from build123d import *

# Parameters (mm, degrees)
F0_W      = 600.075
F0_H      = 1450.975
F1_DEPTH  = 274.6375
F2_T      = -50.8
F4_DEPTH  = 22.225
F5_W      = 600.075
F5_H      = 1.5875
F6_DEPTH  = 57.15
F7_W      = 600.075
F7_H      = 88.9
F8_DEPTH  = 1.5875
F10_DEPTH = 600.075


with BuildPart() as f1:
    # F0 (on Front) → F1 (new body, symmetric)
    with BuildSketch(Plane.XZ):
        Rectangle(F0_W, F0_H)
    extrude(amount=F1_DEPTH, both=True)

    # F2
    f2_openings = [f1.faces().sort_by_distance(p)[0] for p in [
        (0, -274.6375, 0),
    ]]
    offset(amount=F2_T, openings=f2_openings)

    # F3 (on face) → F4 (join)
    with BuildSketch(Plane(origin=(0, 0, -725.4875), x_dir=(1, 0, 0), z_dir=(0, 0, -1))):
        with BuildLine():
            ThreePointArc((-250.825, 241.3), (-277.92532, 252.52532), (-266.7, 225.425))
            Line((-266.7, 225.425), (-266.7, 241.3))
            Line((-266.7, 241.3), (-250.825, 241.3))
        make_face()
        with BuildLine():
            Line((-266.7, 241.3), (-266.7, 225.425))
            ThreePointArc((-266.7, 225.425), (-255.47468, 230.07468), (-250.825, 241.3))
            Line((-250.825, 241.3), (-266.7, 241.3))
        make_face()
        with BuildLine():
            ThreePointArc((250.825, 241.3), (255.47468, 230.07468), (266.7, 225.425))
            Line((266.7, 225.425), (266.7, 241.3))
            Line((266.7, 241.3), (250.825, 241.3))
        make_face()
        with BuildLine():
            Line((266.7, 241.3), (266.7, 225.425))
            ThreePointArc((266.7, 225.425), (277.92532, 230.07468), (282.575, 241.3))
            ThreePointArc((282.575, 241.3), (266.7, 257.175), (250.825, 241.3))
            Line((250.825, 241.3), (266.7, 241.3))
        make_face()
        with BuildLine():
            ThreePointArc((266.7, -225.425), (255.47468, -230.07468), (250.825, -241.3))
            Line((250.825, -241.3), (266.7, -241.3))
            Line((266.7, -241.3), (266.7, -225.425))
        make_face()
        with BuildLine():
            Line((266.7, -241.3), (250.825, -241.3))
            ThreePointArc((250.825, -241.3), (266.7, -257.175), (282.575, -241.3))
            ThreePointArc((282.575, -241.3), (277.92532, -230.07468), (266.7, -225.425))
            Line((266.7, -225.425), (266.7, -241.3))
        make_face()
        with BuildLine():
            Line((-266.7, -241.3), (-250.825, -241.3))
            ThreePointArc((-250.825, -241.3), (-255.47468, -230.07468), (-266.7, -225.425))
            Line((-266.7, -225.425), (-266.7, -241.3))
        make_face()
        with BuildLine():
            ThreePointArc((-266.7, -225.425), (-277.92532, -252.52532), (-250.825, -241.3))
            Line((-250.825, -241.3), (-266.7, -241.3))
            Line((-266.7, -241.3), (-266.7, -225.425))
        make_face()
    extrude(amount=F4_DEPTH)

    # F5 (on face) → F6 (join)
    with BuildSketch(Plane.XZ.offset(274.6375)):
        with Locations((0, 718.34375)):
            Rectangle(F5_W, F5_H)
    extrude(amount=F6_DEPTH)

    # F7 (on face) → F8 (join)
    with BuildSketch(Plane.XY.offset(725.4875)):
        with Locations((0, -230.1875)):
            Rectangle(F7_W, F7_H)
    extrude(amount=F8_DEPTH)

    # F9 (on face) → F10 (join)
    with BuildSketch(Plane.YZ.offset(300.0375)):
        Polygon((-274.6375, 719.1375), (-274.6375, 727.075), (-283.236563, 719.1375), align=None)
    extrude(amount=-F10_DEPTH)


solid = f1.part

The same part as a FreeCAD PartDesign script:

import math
import FreeCAD as App
import Part
import Sketcher
Q = App.Units.Quantity


def faces_at(feature, points):
    """Names of the faces that lie closest to the given points."""
    faces = feature.Shape.Faces
    near = lambda p: min(range(len(faces)), key=lambda i: faces[i].distToShape(Part.Vertex(*p))[0])
    return sorted({f"Face{near(p) + 1}" for p in points})


def add_polygon(sketch, points):
    """Adds a closed chain of lines whose ends are joined by coincident constraints."""
    first, n = sketch.GeometryCount, len(points)
    for a, b in zip(points, points[1:] + points[:1]):
        sketch.addGeometry(Part.LineSegment(App.Vector(*a, 0), App.Vector(*b, 0)), False)
    for i in range(n):
        sketch.addConstraint(Sketcher.Constraint("Coincident", first + i, 2, first + (i + 1) % n, 1))

doc = App.newDocument("Part")
body = doc.addObject("PartDesign::Body", "Body")

sketch1 = doc.addObject("Sketcher::SketchObject", "Sketch")
body.addObject(sketch1)
sketch1.AttachmentSupport = (doc.XZ_Plane, [""])
sketch1.MapMode = "FlatFace"
add_polygon(sketch1, [(-300, 725), (-300, -725), (300, -725), (300, 725)])
sketch1.addConstraint([
    Sketcher.Constraint("Vertical", 0),
    Sketcher.Constraint("Horizontal", 1),
    Sketcher.Constraint("Vertical", 2),
    Sketcher.Constraint("Horizontal", 3),
    Sketcher.Constraint("Symmetric", 0, 2, 2, 2, -1, 1),
    Sketcher.Constraint("DistanceX", 1, 1, 1, 2, Q("23.625 in")),
    Sketcher.Constraint("DistanceY", 0, 2, 0, 1, Q("57.125 in")),
])
pad1 = doc.addObject("PartDesign::Pad", "Pad")
body.addObject(pad1)
pad1.Profile = sketch1
pad1.Length = Q("21.625 in")
pad1.Midplane = True
doc.recompute()

thickness = doc.addObject("PartDesign::Thickness", "Thickness")
body.addObject(thickness)
thickness.Base = (pad1, faces_at(pad1, [(0, -274.637, 0)]))
thickness.Value = Q("2 in")
thickness.Reversed = True
thickness.Join = "Arc"

sketch2 = doc.addObject("Sketcher::SketchObject", "Sketch001")
body.addObject(sketch2)
sketch2.AttachmentSupport = (doc.XY_Plane, [""])
sketch2.MapMode = "FlatFace"
sketch2.AttachmentOffset = App.Placement(App.Vector(0, 0, -28.5625 * 25.4), App.Rotation())
sketch2.addGeometry([
    Part.ArcOfCircle(Part.Circle(App.Vector(-267, -241, 0), App.Vector(0, 0, 1), 16), math.radians(90), math.radians(360)),
    Part.ArcOfCircle(Part.Circle(App.Vector(-267, -241, 0), App.Vector(0, 0, 1), 16), math.radians(0), math.radians(90)),
    Part.ArcOfCircle(Part.Circle(App.Vector(267, -241, 0), App.Vector(0, 0, 1), 16), math.radians(90), math.radians(180)),
    Part.ArcOfCircle(Part.Circle(App.Vector(267, -241, 0), App.Vector(0, 0, 1), 16), math.radians(0), math.radians(90)),
    Part.ArcOfCircle(Part.Circle(App.Vector(267, -241, 0), App.Vector(0, 0, 1), 16), math.radians(180), math.radians(360)),
    Part.ArcOfCircle(Part.Circle(App.Vector(267, 241, 0), App.Vector(0, 0, 1), 16), math.radians(-180), math.radians(-90)),
    Part.ArcOfCircle(Part.Circle(App.Vector(267, 241, 0), App.Vector(0, 0, 1), 16), math.radians(0), math.radians(180)),
    Part.ArcOfCircle(Part.Circle(App.Vector(267, 241, 0), App.Vector(0, 0, 1), 16), math.radians(-90), math.radians(0)),
    Part.ArcOfCircle(Part.Circle(App.Vector(-267, 241, 0), App.Vector(0, 0, 1), 16), math.radians(-90), math.radians(0)),
    Part.ArcOfCircle(Part.Circle(App.Vector(-267, 241, 0), App.Vector(0, 0, 1), 16), math.radians(0), math.radians(270)),
], False)
sketch2.addConstraint([
    Sketcher.Constraint("Tangent", 0, 1, 1, 2),
    Sketcher.Constraint("Coincident", 1, 1, 0, 2),
    Sketcher.Constraint("Tangent", 2, 1, 3, 2),
    Sketcher.Constraint("Tangent", 3, 1, 4, 2),
    Sketcher.Constraint("Tangent", 4, 1, 2, 2),
    Sketcher.Constraint("Tangent", 5, 1, 6, 2),
    Sketcher.Constraint("Tangent", 6, 1, 7, 2),
    Sketcher.Constraint("Tangent", 7, 1, 5, 2),
    Sketcher.Constraint("Tangent", 8, 1, 9, 2),
    Sketcher.Constraint("Coincident", 9, 1, 8, 2),
    Sketcher.Constraint("Equal", 1, 2),
    Sketcher.Constraint("Equal", 4, 5),
    Sketcher.Constraint("Equal", 7, 8),
    Sketcher.Constraint("Symmetric", 0, 3, 5, 3, -1, 1),
    Sketcher.Constraint("Symmetric", 2, 3, 8, 3, -1, 1),
    Sketcher.Constraint("Symmetric", 0, 3, 2, 3, -2),
    Sketcher.Constraint("Horizontal", 4, 3, 1, 1),
    Sketcher.Constraint("Horizontal", 1, 1, 3, 1),
    Sketcher.Constraint("Horizontal", 3, 1, 4, 1),
    Sketcher.Constraint("Horizontal", 9, 3, 5, 1),
    Sketcher.Constraint("Horizontal", 5, 1, 6, 1),
    Sketcher.Constraint("Horizontal", 6, 1, 9, 1),
    Sketcher.Constraint("Vertical", 9, 3, 0, 1),
    Sketcher.Constraint("Vertical", 7, 3, 2, 1),
    Sketcher.Constraint("Vertical", 2, 1, 7, 1),
    Sketcher.Constraint("Vertical", 0, 1, 8, 1),
    Sketcher.Constraint("Radius", 0, Q("0.625 in")),
    Sketcher.Constraint("DistanceX", 0, 3, 2, 3, Q("21 in")),
    Sketcher.Constraint("DistanceY", 4, 3, 5, 3, Q("19 in")),
])
pad2 = doc.addObject("PartDesign::Pad", "Pad001")
body.addObject(pad2)
pad2.Profile = sketch2
pad2.Length = Q("0.875 in")
pad2.Reversed = True

sketch3 = doc.addObject("Sketcher::SketchObject", "Sketch002")
body.addObject(sketch3)
sketch3.AttachmentSupport = (doc.XZ_Plane, [""])
sketch3.MapMode = "FlatFace"
sketch3.AttachmentOffset = App.Placement(App.Vector(0, 0, 10.8125 * 25.4), App.Rotation())
add_polygon(sketch3, [(-300, 719.1), (-300, 717.5), (300, 717.5), (300, 719.1)])
sketch3.addConstraint([
    Sketcher.Constraint("Vertical", 0),
    Sketcher.Constraint("Horizontal", 1),
    Sketcher.Constraint("Vertical", 2),
    Sketcher.Constraint("Horizontal", 3),
    Sketcher.Constraint("DistanceX", 1, 1, 1, 2, Q("23.625 in")),
    Sketcher.Constraint("DistanceY", 0, 2, 0, 1, Q("0.0625 in")),
    Sketcher.Constraint("DistanceY", -1, 1, 0, 2, Q("28.25 in")),
    Sketcher.Constraint("DistanceX", 0, 2, -1, 1, Q("11.8125 in")),
])
pad3 = doc.addObject("PartDesign::Pad", "Pad002")
body.addObject(pad3)
pad3.Profile = sketch3
pad3.Length = Q("2.25 in")

sketch4 = doc.addObject("Sketcher::SketchObject", "Sketch003")
body.addObject(sketch4)
sketch4.AttachmentSupport = (doc.XY_Plane, [""])
sketch4.MapMode = "FlatFace"
sketch4.AttachmentOffset = App.Placement(App.Vector(0, 0, 28.5625 * 25.4), App.Rotation())
add_polygon(sketch4, [(-300, -186), (-300, -275), (300, -275), (300, -186)])
sketch4.addConstraint([
    Sketcher.Constraint("Vertical", 0),
    Sketcher.Constraint("Horizontal", 1),
    Sketcher.Constraint("Vertical", 2),
    Sketcher.Constraint("Horizontal", 3),
    Sketcher.Constraint("DistanceY", 0, 2, 0, 1, Q("3.5 in")),
    Sketcher.Constraint("DistanceX", 1, 1, 1, 2, Q("23.625 in")),
    Sketcher.Constraint("DistanceX", 0, 2, -1, 1, Q("11.8125 in")),
    Sketcher.Constraint("DistanceY", 0, 2, -1, 1, Q("10.8125 in")),
])
pad4 = doc.addObject("PartDesign::Pad", "Pad003")
body.addObject(pad4)
pad4.Profile = sketch4
pad4.Length = Q("0.0625 in")

sketch5 = doc.addObject("Sketcher::SketchObject", "Sketch004")
body.addObject(sketch5)
sketch5.AttachmentSupport = (doc.YZ_Plane, [""])
sketch5.MapMode = "FlatFace"
sketch5.AttachmentOffset = App.Placement(App.Vector(0, 0, 11.8125 * 25.4), App.Rotation())
add_polygon(sketch5, [(-275, 719), (-275, 727), (-283, 719)])
sketch5.addConstraint([
    Sketcher.Constraint("Vertical", 0),
    Sketcher.Constraint("Horizontal", 2),
    Sketcher.Constraint("DistanceY", 0, 1, 0, 2, Q("0.3125 in")),
    Sketcher.Constraint("DistanceX", 0, 2, -1, 1, Q("10.8125 in")),
    Sketcher.Constraint("DistanceY", -1, 1, 0, 2, Q("28.625 in")),
    Sketcher.Constraint("Distance", 1, Q("11.702469 mm")),
])
pad5 = doc.addObject("PartDesign::Pad", "Pad004")
body.addObject(pad5)
pad5.Profile = sketch5
pad5.Length = Q("23.625 in")
pad5.Reversed = True

doc.recompute()
